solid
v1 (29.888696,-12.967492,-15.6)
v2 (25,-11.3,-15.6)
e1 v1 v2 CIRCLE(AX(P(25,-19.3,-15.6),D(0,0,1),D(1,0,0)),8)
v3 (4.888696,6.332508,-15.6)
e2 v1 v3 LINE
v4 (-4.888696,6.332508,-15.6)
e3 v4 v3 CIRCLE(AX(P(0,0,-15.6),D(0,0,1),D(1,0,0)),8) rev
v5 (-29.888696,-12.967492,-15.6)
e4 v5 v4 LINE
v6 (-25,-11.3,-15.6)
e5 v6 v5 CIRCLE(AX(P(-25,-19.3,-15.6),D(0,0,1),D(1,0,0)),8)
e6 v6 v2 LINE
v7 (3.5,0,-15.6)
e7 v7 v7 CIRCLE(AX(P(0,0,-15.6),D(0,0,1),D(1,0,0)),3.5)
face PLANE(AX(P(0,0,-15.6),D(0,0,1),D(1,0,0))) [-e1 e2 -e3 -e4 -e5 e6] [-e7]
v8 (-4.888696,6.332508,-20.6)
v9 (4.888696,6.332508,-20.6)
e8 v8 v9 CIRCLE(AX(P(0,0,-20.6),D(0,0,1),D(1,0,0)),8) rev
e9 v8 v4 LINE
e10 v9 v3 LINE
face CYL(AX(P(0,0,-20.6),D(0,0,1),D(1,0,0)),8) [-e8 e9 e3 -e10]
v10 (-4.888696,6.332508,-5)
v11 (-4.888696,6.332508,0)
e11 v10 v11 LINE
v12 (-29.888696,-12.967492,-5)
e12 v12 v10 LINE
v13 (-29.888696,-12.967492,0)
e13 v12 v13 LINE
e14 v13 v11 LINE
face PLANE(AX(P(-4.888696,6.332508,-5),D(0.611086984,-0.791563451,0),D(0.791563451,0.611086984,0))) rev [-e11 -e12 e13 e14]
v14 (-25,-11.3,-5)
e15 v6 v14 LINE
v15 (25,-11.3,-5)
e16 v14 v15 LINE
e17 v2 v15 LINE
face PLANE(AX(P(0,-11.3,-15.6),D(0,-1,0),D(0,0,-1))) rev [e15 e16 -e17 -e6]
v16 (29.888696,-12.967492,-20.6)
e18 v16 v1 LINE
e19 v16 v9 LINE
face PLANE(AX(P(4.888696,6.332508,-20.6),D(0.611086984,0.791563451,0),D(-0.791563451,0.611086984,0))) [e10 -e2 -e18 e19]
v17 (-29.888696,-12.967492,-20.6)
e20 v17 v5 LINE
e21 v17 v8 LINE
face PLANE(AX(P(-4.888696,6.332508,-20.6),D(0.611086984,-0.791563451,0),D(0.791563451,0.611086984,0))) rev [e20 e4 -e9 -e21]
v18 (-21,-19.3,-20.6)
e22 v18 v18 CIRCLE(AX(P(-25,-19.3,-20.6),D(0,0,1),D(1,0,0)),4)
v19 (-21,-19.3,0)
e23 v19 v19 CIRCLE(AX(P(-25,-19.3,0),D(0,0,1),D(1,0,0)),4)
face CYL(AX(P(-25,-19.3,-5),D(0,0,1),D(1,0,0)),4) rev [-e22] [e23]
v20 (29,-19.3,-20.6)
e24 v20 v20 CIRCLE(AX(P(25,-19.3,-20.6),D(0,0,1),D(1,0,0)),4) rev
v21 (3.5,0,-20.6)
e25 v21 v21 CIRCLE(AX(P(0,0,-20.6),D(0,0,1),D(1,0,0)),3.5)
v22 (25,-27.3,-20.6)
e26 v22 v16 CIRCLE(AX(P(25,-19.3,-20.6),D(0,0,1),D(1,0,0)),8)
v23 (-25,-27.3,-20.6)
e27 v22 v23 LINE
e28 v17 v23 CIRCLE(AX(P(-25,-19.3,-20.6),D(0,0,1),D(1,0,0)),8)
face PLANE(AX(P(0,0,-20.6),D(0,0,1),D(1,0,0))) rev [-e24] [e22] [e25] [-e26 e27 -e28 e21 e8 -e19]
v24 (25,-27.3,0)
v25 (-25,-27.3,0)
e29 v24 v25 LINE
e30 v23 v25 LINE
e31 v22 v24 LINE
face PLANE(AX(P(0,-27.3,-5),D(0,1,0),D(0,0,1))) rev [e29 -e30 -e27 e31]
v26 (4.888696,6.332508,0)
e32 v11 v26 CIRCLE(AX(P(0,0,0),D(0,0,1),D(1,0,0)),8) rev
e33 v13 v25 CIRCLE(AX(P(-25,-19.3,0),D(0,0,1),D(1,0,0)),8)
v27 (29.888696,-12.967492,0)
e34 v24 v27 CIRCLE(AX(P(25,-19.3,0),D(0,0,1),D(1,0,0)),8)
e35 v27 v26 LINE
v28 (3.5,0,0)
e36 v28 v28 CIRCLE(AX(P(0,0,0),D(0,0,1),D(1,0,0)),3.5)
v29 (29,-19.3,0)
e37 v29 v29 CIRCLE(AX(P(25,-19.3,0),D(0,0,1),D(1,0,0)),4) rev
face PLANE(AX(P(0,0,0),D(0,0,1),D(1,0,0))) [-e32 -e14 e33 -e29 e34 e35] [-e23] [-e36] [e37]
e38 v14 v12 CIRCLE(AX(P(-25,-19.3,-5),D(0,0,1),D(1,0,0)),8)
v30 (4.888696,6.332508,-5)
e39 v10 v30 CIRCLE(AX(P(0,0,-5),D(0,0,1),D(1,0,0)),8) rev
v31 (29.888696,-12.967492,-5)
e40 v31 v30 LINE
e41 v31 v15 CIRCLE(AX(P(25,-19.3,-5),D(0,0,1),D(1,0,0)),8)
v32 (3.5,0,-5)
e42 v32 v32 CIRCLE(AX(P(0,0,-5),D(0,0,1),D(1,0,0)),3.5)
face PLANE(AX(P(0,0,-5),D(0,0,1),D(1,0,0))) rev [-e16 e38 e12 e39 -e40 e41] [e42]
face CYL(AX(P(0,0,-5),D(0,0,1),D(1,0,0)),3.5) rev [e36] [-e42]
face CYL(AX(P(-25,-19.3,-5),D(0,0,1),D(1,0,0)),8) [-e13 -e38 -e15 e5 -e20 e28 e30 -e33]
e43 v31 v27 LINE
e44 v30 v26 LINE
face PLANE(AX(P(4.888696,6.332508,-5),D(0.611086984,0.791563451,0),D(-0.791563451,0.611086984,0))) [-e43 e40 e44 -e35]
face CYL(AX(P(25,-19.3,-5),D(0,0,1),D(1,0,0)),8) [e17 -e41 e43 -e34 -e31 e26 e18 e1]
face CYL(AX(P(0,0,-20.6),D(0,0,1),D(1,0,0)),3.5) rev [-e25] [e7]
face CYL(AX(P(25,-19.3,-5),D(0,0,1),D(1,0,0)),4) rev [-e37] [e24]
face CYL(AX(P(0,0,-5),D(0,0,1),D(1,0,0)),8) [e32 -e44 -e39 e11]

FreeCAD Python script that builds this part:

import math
import FreeCAD as App
import Part
import Sketcher
from FreeCAD import Vector

doc = App.newDocument("Part")
body = doc.addObject("PartDesign::Body", "Body")

sketch1 = doc.addObject("Sketcher::SketchObject", "Sketch")
body.addObject(sketch1)
sketch1.AttachmentSupport = (doc.XY_Plane, [""])
sketch1.MapMode = "FlatFace"
sketch1.addGeometry([
    Part.ArcOfCircle(Part.Circle(Vector(-25, -19.3, 0), Vector(0, 0, 1), 8), math.radians(128), math.radians(270)),
    Part.LineSegment(Vector(-25, -27.3, 0), Vector(25, -27.3, 0)),
    Part.ArcOfCircle(Part.Circle(Vector(25, -19.3, 0), Vector(0, 0, 1), 8), math.radians(-90), math.radians(52)),
    Part.LineSegment(Vector(29.9, -13, 0), Vector(10.9, 1.7, 0)),
    Part.LineSegment(Vector(10.9, 1.7, 0), Vector(4.9, 6.3, 0)),
    Part.ArcOfCircle(Part.Circle(Vector(0, 0, 0), Vector(0, 0, 1), 8), math.radians(52), math.radians(90)),
    Part.ArcOfCircle(Part.Circle(Vector(0, 0, 0), Vector(0, 0, 1), 8), math.radians(90), math.radians(128)),
    Part.LineSegment(Vector(-4.9, 6.3, 0), Vector(-10.9, 1.7, 0)),
    Part.LineSegment(Vector(-10.9, 1.7, 0), Vector(-29.9, -13, 0)),
    Part.Circle(Vector(-25, -19.3, 0), Vector(0, 0, 1), 4),
    Part.Circle(Vector(25, -19.3, 0), Vector(0, 0, 1), 4),
    Part.ArcOfCircle(Part.Circle(Vector(0, 0, 0), Vector(0, 0, 1), 3.5), math.radians(90), math.radians(270)),
    Part.ArcOfCircle(Part.Circle(Vector(0, 0, 0), Vector(0, 0, 1), 3.5), math.radians(0), math.radians(90)),
    Part.ArcOfCircle(Part.Circle(Vector(0, 0, 0), Vector(0, 0, 1), 3.5), math.radians(-90), math.radians(0)),
], False)
sketch1.addConstraint([
    Sketcher.Constraint("Tangent", 0, 2, 1, 1),
    Sketcher.Constraint("Tangent", 1, 2, 2, 1),
    Sketcher.Constraint("Tangent", 2, 2, 3, 1),
    Sketcher.Constraint("Coincident", 3, 2, 4, 1),
    Sketcher.Constraint("Tangent", 4, 2, 5, 1),
    Sketcher.Constraint("Tangent", 5, 2, 6, 1),
    Sketcher.Constraint("Tangent", 6, 2, 7, 1),
    Sketcher.Constraint("Coincident", 7, 2, 8, 1),
    Sketcher.Constraint("Tangent", 8, 2, 0, 1),
    Sketcher.Constraint("Tangent", 11, 1, 12, 2),
    Sketcher.Constraint("Tangent", 12, 1, 13, 2),
    Sketcher.Constraint("Tangent", 13, 1, 11, 2),
    Sketcher.Constraint("Horizontal", 1),
    Sketcher.Constraint("Coincident", 5, 3, -1, 1),
    Sketcher.Constraint("Coincident", 11, 3, -1, 1),
    Sketcher.Constraint("Coincident", 9, 3, 0, 3),
    Sketcher.Constraint("Coincident", 10, 3, 2, 3),
    Sketcher.Constraint("Equal", 0, 2),
    Sketcher.Constraint("Equal", 2, 5),
    Sketcher.Constraint("Equal", 5, 6),
    Sketcher.Constraint("Equal", 9, 10),
    Sketcher.Constraint("Symmetric", 3, 2, 7, 2, -2),
    Sketcher.Constraint("PointOnObject", 5, 2, -2),
    Sketcher.Constraint("PointOnObject", 11, 1, -2),
    Sketcher.Constraint("PointOnObject", 12, 1, -1),
    Sketcher.Constraint("PointOnObject", 13, 1, -2),
    Sketcher.Constraint("Parallel", 3, 4),
    Sketcher.Constraint("Parallel", 7, 8),
    Sketcher.Constraint("Diameter", 9, 8.0),
    Sketcher.Constraint("Radius", 0, 8.0),
    Sketcher.Constraint("Radius", 11, 3.5),
    Sketcher.Constraint("DistanceX", 1, 1, 1, 2, 50.0),
    Sketcher.Constraint("DistanceY", 0, 3, -1, 1, 19.3),
    Sketcher.Constraint("Distance", 3, 24.033231),
])
pad1 = doc.addObject("PartDesign::Pad", "Pad")
body.addObject(pad1)
pad1.Profile = sketch1
pad1.Length = 5
pad1.Reversed = True

sketch2 = doc.addObject("Sketcher::SketchObject", "Sketch001")
body.addObject(sketch2)
sketch2.AttachmentSupport = (doc.XY_Plane, [""])
sketch2.MapMode = "FlatFace"
sketch2.AttachmentOffset = App.Placement(Vector(0, 0, -15.6), App.Rotation())
sketch2.addGeometry([
    Part.LineSegment(Vector(-25, -27.3, 0), Vector(25, -27.3, 0)),
    Part.ArcOfCircle(Part.Circle(Vector(25, -19.3, 0), Vector(0, 0, 1), 8), math.radians(-90), math.radians(52)),
    Part.ArcOfCircle(Part.Circle(Vector(25, -19.3, 0), Vector(0, 0, 1), 8), math.radians(52), math.radians(90)),
    Part.LineSegment(Vector(25, -11.3, 0), Vector(-25, -11.3, 0)),
    Part.ArcOfCircle(Part.Circle(Vector(-25, -19.3, 0), Vector(0, 0, 1), 8), math.radians(90), math.radians(128)),
    Part.ArcOfCircle(Part.Circle(Vector(-25, -19.3, 0), Vector(0, 0, 1), 8), math.radians(128), math.radians(270)),
    Part.Circle(Vector(-25, -19.3, 0), Vector(0, 0, 1), 4),
    Part.Circle(Vector(25, -19.3, 0), Vector(0, 0, 1), 4),
], False)
sketch2.addConstraint([
    Sketcher.Constraint("Tangent", 0, 2, 1, 1),
    Sketcher.Constraint("Tangent", 1, 2, 2, 1),
    Sketcher.Constraint("Tangent", 2, 2, 3, 1),
    Sketcher.Constraint("Tangent", 3, 2, 4, 1),
    Sketcher.Constraint("Tangent", 4, 2, 5, 1),
    Sketcher.Constraint("Tangent", 5, 2, 0, 1),
    Sketcher.Constraint("Horizontal", 0),
    Sketcher.Constraint("Horizontal", 3),
    Sketcher.Constraint("Coincident", 6, 3, 4, 3),
    Sketcher.Constraint("Coincident", 7, 3, 1, 3),
    Sketcher.Constraint("Equal", 1, 2),
    Sketcher.Constraint("Equal", 2, 4),
    Sketcher.Constraint("Equal", 6, 7),
    Sketcher.Constraint("Symmetric", 1, 2, 4, 2, -2),
    Sketcher.Constraint("Diameter", 6, 8.0),
    Sketcher.Constraint("Radius", 1, 8.0),
    Sketcher.Constraint("DistanceX", 0, 1, 0, 2, 50.0),
    Sketcher.Constraint("DistanceY", 1, 3, -1, 1, 19.3),
    Sketcher.Constraint("DistanceX", -1, 1, 1, 2, 29.888696),
])
pad2 = doc.addObject("PartDesign::Pad", "Pad001")
body.addObject(pad2)
pad2.Profile = sketch2
pad2.Length = 10.6

sketch3 = doc.addObject("Sketcher::SketchObject", "Sketch002")
body.addObject(sketch3)
sketch3.AttachmentSupport = (doc.XY_Plane, [""])
sketch3.MapMode = "FlatFace"
sketch3.AttachmentOffset = App.Placement(Vector(0, 0, -15.6), App.Rotation())
sketch3.addGeometry([
    Part.LineSegment(Vector(-10.9, 1.7, 0), Vector(-29.9, -13, 0)),
    Part.ArcOfCircle(Part.Circle(Vector(-25, -19.3, 0), Vector(0, 0, 1), 8), math.radians(128), math.radians(270)),
    Part.LineSegment(Vector(-25, -27.3, 0), Vector(25, -27.3, 0)),
    Part.ArcOfCircle(Part.Circle(Vector(25, -19.3, 0), Vector(0, 0, 1), 8), math.radians(-90), math.radians(52)),
    Part.LineSegment(Vector(29.9, -13, 0), Vector(10.9, 1.7, 0)),
    Part.LineSegment(Vector(10.9, 1.7, 0), Vector(4.9, 6.3, 0)),
    Part.ArcOfCircle(Part.Circle(Vector(0, 0, 0), Vector(0, 0, 1), 8), math.radians(52), math.radians(90)),
    Part.ArcOfCircle(Part.Circle(Vector(0, 0, 0), Vector(0, 0, 1), 8), math.radians(90), math.radians(128)),
    Part.LineSegment(Vector(-4.9, 6.3, 0), Vector(-10.9, 1.7, 0)),
    Part.ArcOfCircle(Part.Circle(Vector(0, 0, 0), Vector(0, 0, 1), 3.5), math.radians(90), math.radians(270)),
    Part.ArcOfCircle(Part.Circle(Vector(0, 0, 0), Vector(0, 0, 1), 3.5), math.radians(0), math.radians(90)),
    Part.ArcOfCircle(Part.Circle(Vector(0, 0, 0), Vector(0, 0, 1), 3.5), math.radians(-90), math.radians(0)),
    Part.Circle(Vector(-25, -19.3, 0), Vector(0, 0, 1), 4),
    Part.Circle(Vector(25, -19.3, 0), Vector(0, 0, 1), 4),
], False)
sketch3.addConstraint([
    Sketcher.Constraint("Tangent", 0, 2, 1, 1),
    Sketcher.Constraint("Tangent", 1, 2, 2, 1),
    Sketcher.Constraint("Tangent", 2, 2, 3, 1),
    Sketcher.Constraint("Tangent", 3, 2, 4, 1),
    Sketcher.Constraint("Coincident", 4, 2, 5, 1),
    Sketcher.Constraint("Tangent", 5, 2, 6, 1),
    Sketcher.Constraint("Tangent", 6, 2, 7, 1),
    Sketcher.Constraint("Tangent", 7, 2, 8, 1),
    Sketcher.Constraint("Coincident", 8, 2, 0, 1),
    Sketcher.Constraint("Tangent", 9, 1, 10, 2),
    Sketcher.Constraint("Tangent", 10, 1, 11, 2),
    Sketcher.Constraint("Tangent", 11, 1, 9, 2),
    Sketcher.Constraint("Horizontal", 2),
    Sketcher.Constraint("Coincident", 6, 3, -1, 1),
    Sketcher.Constraint("Coincident", 9, 3, -1, 1),
    Sketcher.Constraint("Coincident", 12, 3, 1, 3),
    Sketcher.Constraint("Coincident", 13, 3, 3, 3),
    Sketcher.Constraint("Equal", 1, 3),
    Sketcher.Constraint("Equal", 3, 6),
    Sketcher.Constraint("Equal", 6, 7),
    Sketcher.Constraint("Equal", 12, 13),
    Sketcher.Constraint("Symmetric", 0, 2, 3, 2, -2),
    Sketcher.Constraint("PointOnObject", 6, 2, -2),
    Sketcher.Constraint("PointOnObject", 9, 1, -2),
    Sketcher.Constraint("PointOnObject", 10, 1, -1),
    Sketcher.Constraint("PointOnObject", 11, 1, -2),
    Sketcher.Constraint("Parallel", 4, 5),
    Sketcher.Constraint("Horizontal", 4, 2, 8, 2),
    Sketcher.Constraint("Diameter", 12, 8.0),
    Sketcher.Constraint("Radius", 1, 8.0),
    Sketcher.Constraint("Radius", 9, 3.5),
    Sketcher.Constraint("DistanceX", 2, 1, 2, 2, 50.0),
    Sketcher.Constraint("DistanceY", 1, 3, -1, 1, 19.3),
    Sketcher.Constraint("Distance", 0, 24.033231),
])
pad3 = doc.addObject("PartDesign::Pad", "Pad002")
body.addObject(pad3)
pad3.Profile = sketch3
pad3.Length = 5
pad3.Reversed = True

doc.recompute()
